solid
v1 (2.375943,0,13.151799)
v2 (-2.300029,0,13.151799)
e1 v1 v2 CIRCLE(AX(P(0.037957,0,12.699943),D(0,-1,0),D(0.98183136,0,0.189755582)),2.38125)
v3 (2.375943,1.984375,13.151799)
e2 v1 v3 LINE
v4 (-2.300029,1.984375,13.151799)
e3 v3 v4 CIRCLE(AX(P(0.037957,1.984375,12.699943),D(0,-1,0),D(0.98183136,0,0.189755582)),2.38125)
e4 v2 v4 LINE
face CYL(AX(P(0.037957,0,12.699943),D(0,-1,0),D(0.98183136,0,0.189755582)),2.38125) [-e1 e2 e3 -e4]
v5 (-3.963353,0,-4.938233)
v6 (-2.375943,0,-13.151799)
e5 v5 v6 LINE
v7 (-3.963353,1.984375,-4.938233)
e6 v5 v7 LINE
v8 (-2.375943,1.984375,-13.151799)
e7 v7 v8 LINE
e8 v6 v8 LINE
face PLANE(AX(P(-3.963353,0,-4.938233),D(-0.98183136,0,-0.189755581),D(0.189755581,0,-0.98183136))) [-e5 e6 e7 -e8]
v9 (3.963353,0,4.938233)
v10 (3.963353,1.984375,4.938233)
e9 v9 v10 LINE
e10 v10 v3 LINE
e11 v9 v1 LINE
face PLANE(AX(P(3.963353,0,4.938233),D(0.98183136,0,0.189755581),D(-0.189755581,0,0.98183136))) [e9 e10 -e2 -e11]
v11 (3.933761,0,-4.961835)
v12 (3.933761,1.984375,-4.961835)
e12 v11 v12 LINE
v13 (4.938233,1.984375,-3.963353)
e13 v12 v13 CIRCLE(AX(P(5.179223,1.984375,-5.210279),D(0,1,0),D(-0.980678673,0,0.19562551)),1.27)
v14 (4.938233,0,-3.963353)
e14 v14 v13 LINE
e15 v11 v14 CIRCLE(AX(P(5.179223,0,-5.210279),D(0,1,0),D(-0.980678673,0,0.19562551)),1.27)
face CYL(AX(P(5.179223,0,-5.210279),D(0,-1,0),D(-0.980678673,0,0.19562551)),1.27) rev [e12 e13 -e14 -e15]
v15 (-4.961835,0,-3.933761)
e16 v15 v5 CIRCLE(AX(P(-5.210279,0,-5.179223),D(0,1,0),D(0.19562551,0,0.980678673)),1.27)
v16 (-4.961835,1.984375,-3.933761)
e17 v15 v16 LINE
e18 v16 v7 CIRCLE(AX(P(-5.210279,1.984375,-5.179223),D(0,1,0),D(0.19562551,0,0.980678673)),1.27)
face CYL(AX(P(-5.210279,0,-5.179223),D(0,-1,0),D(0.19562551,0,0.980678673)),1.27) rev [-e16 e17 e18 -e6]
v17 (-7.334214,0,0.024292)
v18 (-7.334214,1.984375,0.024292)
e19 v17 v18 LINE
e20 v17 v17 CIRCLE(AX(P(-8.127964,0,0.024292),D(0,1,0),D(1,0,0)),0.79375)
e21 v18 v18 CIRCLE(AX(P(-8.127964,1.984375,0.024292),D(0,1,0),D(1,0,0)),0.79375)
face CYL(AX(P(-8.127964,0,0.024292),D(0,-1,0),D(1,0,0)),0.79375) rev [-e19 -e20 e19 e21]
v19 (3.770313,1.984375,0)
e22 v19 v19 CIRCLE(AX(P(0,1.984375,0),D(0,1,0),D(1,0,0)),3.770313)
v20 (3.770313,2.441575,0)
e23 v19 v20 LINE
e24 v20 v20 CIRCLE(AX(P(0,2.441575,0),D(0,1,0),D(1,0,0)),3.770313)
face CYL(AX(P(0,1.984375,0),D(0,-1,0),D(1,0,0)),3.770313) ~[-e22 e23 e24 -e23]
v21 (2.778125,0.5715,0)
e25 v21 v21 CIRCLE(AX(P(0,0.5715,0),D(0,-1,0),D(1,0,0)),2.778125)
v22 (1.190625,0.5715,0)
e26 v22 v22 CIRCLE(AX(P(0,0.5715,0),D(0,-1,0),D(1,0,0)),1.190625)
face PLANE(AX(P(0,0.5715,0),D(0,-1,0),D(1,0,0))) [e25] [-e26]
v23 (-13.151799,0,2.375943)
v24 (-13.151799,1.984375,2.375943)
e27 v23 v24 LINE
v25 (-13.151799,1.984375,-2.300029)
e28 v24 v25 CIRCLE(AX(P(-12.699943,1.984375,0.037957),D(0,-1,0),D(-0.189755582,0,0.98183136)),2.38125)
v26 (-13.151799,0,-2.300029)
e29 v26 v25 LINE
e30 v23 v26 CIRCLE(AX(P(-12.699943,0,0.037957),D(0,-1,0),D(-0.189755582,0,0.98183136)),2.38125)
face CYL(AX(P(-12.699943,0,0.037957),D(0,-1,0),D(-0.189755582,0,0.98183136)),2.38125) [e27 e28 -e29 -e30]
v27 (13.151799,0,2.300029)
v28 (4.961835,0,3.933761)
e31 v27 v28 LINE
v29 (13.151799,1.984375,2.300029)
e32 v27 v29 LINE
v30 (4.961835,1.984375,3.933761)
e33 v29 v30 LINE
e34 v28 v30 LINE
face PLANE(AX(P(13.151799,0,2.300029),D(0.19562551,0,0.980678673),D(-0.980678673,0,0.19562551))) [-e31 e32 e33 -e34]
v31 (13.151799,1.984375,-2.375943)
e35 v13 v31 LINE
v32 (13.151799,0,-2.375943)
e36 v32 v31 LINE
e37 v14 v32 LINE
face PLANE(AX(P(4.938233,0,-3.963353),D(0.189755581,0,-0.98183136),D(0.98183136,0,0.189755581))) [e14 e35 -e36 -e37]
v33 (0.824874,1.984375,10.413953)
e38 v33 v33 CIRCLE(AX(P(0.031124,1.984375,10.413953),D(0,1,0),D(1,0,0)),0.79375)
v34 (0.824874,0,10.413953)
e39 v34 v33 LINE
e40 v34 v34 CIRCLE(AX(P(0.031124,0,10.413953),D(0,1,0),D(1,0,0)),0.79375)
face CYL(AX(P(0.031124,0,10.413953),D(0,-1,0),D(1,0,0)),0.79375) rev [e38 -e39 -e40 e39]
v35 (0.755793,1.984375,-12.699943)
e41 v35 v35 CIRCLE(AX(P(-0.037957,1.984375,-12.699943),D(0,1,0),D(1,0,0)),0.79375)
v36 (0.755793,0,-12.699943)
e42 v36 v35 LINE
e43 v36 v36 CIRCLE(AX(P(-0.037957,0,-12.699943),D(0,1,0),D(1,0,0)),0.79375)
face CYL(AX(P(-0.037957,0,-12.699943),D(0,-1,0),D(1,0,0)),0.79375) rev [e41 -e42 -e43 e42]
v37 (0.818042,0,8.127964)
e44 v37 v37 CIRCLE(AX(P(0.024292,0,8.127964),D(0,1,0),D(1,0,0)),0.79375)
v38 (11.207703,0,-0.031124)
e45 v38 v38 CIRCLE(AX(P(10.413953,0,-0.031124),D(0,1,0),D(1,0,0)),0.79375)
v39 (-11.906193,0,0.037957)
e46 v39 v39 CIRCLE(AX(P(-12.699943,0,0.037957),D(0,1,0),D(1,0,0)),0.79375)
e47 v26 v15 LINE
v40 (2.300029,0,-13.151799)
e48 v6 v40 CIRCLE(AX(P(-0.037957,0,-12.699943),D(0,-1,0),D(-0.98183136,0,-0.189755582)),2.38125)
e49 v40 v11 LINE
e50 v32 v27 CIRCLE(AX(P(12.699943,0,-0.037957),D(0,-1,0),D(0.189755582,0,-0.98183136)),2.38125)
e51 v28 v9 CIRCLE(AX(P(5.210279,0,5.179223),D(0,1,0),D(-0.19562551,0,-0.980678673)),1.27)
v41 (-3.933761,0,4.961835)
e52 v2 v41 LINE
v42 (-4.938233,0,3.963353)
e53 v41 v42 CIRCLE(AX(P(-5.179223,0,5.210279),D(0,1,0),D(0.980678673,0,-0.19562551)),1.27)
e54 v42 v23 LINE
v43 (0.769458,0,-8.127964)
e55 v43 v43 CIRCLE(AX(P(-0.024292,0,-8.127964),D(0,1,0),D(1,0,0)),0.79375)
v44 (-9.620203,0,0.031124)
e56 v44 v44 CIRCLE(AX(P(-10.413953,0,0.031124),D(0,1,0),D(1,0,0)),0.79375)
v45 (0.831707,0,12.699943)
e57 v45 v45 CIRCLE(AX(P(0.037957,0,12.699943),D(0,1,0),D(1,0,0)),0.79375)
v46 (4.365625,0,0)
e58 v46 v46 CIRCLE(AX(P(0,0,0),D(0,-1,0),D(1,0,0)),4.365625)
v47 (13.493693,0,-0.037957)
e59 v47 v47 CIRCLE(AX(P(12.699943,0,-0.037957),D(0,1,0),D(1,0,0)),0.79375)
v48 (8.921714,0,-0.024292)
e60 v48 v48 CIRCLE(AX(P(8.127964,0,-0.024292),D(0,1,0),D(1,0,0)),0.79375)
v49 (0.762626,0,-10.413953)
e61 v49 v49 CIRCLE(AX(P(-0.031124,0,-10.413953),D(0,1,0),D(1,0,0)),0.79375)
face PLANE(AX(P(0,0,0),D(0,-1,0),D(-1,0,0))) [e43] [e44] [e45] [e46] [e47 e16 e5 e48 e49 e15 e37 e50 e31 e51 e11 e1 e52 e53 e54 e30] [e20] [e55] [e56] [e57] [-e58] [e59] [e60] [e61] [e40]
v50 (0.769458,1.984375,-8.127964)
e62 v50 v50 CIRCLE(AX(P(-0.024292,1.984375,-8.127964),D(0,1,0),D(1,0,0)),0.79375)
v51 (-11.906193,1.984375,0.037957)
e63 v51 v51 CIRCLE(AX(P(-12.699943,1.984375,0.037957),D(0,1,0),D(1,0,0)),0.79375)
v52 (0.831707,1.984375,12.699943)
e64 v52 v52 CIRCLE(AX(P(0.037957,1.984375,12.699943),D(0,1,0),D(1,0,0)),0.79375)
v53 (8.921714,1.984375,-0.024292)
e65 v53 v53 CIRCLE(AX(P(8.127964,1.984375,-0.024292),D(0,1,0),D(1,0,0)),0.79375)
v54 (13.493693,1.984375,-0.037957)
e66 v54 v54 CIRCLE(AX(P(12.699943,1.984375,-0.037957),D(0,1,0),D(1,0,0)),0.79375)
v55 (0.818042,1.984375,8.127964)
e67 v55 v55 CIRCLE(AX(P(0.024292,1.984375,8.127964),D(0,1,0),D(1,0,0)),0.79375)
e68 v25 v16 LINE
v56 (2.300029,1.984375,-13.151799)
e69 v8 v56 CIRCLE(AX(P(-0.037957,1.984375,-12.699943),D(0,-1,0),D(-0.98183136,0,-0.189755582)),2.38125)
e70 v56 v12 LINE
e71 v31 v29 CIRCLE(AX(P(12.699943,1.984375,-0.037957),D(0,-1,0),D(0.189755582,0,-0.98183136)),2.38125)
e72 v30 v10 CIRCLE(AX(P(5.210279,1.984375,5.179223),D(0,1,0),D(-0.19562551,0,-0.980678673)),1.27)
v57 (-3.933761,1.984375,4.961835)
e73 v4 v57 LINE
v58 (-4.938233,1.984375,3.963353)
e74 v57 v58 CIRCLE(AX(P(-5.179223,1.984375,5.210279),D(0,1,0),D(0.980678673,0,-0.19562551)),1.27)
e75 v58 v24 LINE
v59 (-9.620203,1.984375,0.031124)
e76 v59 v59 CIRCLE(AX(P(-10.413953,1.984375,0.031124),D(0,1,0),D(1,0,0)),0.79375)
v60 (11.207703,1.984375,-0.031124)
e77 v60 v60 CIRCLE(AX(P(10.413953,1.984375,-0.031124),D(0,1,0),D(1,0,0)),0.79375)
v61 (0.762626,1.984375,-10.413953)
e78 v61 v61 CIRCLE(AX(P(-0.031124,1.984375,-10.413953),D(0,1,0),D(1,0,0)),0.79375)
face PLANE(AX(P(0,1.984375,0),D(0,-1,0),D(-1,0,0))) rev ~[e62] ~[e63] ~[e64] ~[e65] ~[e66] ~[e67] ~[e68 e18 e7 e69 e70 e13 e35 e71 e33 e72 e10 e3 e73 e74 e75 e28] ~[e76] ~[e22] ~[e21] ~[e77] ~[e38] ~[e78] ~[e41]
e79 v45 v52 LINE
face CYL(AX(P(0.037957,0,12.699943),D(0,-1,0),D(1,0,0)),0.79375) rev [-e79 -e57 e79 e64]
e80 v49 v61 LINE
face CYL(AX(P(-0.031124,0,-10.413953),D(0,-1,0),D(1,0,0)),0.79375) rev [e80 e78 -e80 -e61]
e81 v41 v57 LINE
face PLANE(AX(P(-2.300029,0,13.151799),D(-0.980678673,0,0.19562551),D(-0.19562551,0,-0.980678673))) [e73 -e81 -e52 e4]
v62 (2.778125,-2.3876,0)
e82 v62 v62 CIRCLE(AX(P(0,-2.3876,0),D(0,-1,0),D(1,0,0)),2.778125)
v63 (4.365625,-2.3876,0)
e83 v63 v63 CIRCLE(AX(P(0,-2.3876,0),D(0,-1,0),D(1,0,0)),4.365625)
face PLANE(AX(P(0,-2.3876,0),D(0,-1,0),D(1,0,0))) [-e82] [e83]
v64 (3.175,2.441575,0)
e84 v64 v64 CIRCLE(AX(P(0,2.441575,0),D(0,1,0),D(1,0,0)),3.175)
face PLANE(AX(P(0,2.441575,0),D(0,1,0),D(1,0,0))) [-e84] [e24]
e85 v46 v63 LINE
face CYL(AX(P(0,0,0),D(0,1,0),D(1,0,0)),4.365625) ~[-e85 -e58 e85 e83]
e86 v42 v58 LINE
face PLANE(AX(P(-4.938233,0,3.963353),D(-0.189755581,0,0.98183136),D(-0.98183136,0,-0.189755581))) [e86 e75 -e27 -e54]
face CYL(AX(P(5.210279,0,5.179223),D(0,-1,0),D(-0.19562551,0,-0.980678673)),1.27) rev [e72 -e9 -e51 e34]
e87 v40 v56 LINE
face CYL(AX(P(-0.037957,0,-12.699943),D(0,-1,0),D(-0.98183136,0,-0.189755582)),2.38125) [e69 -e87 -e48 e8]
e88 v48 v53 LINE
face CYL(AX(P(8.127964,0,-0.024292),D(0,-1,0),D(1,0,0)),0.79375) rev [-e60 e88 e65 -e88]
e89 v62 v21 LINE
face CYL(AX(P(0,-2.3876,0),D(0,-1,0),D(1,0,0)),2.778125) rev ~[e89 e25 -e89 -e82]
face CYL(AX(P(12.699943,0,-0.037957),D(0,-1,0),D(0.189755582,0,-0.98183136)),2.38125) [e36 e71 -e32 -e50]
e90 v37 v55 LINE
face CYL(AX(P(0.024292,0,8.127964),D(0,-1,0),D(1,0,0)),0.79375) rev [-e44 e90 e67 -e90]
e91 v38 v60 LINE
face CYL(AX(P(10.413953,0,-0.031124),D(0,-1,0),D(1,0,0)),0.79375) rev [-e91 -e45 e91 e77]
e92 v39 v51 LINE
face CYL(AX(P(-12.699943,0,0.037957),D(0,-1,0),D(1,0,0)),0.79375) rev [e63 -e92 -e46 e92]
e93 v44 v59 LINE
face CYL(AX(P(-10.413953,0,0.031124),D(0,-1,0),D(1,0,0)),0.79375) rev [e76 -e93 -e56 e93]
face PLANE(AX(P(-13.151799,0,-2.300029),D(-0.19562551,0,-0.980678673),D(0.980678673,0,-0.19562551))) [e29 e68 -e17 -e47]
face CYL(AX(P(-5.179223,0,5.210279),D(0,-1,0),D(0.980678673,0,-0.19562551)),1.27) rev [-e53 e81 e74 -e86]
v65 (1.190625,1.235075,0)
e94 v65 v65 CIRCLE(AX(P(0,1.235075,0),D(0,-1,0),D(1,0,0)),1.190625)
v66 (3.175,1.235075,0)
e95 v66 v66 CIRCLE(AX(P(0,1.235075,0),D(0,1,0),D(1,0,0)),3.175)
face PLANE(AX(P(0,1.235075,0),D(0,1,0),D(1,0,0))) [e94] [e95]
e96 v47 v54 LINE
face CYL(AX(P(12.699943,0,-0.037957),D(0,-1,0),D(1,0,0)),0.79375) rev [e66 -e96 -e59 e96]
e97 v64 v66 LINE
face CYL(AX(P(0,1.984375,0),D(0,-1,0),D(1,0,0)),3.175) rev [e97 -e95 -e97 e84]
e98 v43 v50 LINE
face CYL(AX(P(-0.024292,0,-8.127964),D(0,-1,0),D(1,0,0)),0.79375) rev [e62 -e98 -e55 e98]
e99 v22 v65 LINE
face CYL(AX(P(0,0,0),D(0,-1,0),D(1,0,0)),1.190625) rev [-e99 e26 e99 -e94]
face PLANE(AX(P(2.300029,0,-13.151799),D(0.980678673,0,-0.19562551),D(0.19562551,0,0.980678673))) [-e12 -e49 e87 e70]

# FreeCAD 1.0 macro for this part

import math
import FreeCAD as App
import Part
import Sketcher
from FreeCAD import Vector
Q = App.Units.Quantity

doc = App.newDocument("Part")
params = doc.addObject("Spreadsheet::Sheet", "Params")
for row, (alias, value) in enumerate([
    ("sketch1_radius", "0.05 in"),
    ("sketch1_diameter", "0.0625 in"),
    ("sketch1_diameter2", "0.09375 in"),
    ("sketch1_radius2", "0.09375 in"),
    ("pad1_length", "0.078125 in"),
    ("sketch2_diameter", "0.25 in"),
    ("pocket1_length", "0.0295 in"),
    ("sketch3_diameter", "0.34375 in"),
    ("pad2_length", "0.094 in"),
    ("sketch4_diameter", "0.21875 in"),
    ("pocket2_length", "0.1165 in"),
    ("sketch5_diameter", "0.25 in"),
    ("sketch5_diameter2", "0.296875 in"),
    ("pad3_length", "0.018 in"),
], start=1):
    params.set(f"A{row}", alias)
    params.set(f"B{row}", "=" + value)
    params.setAlias(f"B{row}", alias)

body = doc.addObject("PartDesign::Body", "Body")

# Sketch on XZ plane
sketch1 = doc.addObject("Sketcher::SketchObject", "Sketch")
body.addObject(sketch1)
sketch1.AttachmentSupport = (doc.XZ_Plane, [""])
sketch1.MapMode = "FlatFace"
sketch1.addGeometry([
    Part.LineSegment(Vector(-2.375943, -13.151799, 0), Vector(-3.963353, -4.938233, 0)),  # 0
    Part.ArcOfCircle(Part.Circle(Vector(-5.210279, -5.179223, 0), Vector(0, 0, 1), 1.27), math.radians(10.938521), math.radians(78.718734)),  # 1
    Part.LineSegment(Vector(-4.961835, -3.933761, 0), Vector(-13.151799, -2.300029, 0)),  # 2
    Part.ArcOfCircle(Part.Circle(Vector(-12.699943, 0.037957, 0), Vector(0, 0, 1), 2.38125), math.radians(100.938521), math.radians(259.061479)),  # 3
    Part.LineSegment(Vector(-13.151799, 2.375943, 0), Vector(-4.938233, 3.963353, 0)),  # 4
    Part.ArcOfCircle(Part.Circle(Vector(-5.179223, 5.210279, 0), Vector(0, 0, 1), 1.27), math.radians(-79.061479), math.radians(-11.281266)),  # 5
    Part.LineSegment(Vector(-3.933761, 4.961835, 0), Vector(-2.300029, 13.151799, 0)),  # 6
    Part.ArcOfCircle(Part.Circle(Vector(0.037957, 12.699943, 0), Vector(0, 0, 1), 2.38125), math.radians(10.938521), math.radians(169.061479)),  # 7
    Part.LineSegment(Vector(2.375943, 13.151799, 0), Vector(3.963353, 4.938233, 0)),  # 8
    Part.ArcOfCircle(Part.Circle(Vector(5.210279, 5.179223, 0), Vector(0, 0, 1), 1.27), math.radians(-169.061479), math.radians(-101.281266)),  # 9
    Part.LineSegment(Vector(4.961835, 3.933761, 0), Vector(13.151799, 2.300029, 0)),  # 10
    Part.ArcOfCircle(Part.Circle(Vector(12.699943, -0.037957, 0), Vector(0, 0, 1), 2.38125), math.radians(-79.061479), math.radians(79.061479)),  # 11
    Part.LineSegment(Vector(13.151799, -2.375943, 0), Vector(4.938233, -3.963353, 0)),  # 12
    Part.ArcOfCircle(Part.Circle(Vector(5.179223, -5.210279, 0), Vector(0, 0, 1), 1.27), math.radians(100.938521), math.radians(168.718734)),  # 13
    Part.LineSegment(Vector(3.933761, -4.961835, 0), Vector(2.300029, -13.151799, 0)),  # 14
    Part.ArcOfCircle(Part.Circle(Vector(-0.037957, -12.699943, 0), Vector(0, 0, 1), 2.38125), math.radians(-169.061479), math.radians(-10.938521)),  # 15
    Part.Circle(Vector(0.037957, 12.699943, 0), Vector(0, 0, 1), 0.79375),  # 16
    Part.Circle(Vector(0.031124, 10.413953, 0), Vector(0, 0, 1), 0.79375),  # 17
    Part.Circle(Vector(0.024292, 8.127964, 0), Vector(0, 0, 1), 0.79375),  # 18
    Part.Circle(Vector(0, 0, 0), Vector(0, 0, 1), 1.190625),  # 19
    Part.Circle(Vector(-8.127964, 0.024292, 0), Vector(0, 0, 1), 0.79375),  # 20
    Part.Circle(Vector(-10.413953, 0.031124, 0), Vector(0, 0, 1), 0.79375),  # 21
    Part.Circle(Vector(-12.699943, 0.037957, 0), Vector(0, 0, 1), 0.79375),  # 22
    Part.Circle(Vector(12.699943, -0.037957, 0), Vector(0, 0, 1), 0.79375),  # 23
    Part.Circle(Vector(10.413953, -0.031124, 0), Vector(0, 0, 1), 0.79375),  # 24
    Part.Circle(Vector(8.127964, -0.024292, 0), Vector(0, 0, 1), 0.79375),  # 25
    Part.Circle(Vector(-0.024292, -8.127964, 0), Vector(0, 0, 1), 0.79375),  # 26
    Part.Circle(Vector(-0.031124, -10.413953, 0), Vector(0, 0, 1), 0.79375),  # 27
    Part.Circle(Vector(-0.037957, -12.699943, 0), Vector(0, 0, 1), 0.79375),  # 28
], False)
sketch1.addConstraint([
    Sketcher.Constraint("Tangent", 0, 2, 1, 1),
    Sketcher.Constraint("Tangent", 1, 2, 2, 1),
    Sketcher.Constraint("Coincident", 2, 2, 3, 2),
    Sketcher.Constraint("Tangent", 3, 1, 4, 1),
    Sketcher.Constraint("Tangent", 4, 2, 5, 1),
    Sketcher.Constraint("Tangent", 5, 2, 6, 1),
    Sketcher.Constraint("Coincident", 6, 2, 7, 2),
    Sketcher.Constraint("Tangent", 7, 1, 8, 1),
    Sketcher.Constraint("Tangent", 8, 2, 9, 1),
    Sketcher.Constraint("Tangent", 9, 2, 10, 1),
    Sketcher.Constraint("Coincident", 10, 2, 11, 2),
    Sketcher.Constraint("Tangent", 11, 1, 12, 1),
    Sketcher.Constraint("Tangent", 12, 2, 13, 1),
    Sketcher.Constraint("Tangent", 13, 2, 14, 1),
    Sketcher.Constraint("Coincident", 14, 2, 15, 2),
    Sketcher.Constraint("Tangent", 15, 1, 0, 1),
    Sketcher.Constraint("Coincident", 19, 3, -1, 1),
    Sketcher.Constraint("Coincident", 16, 3, 7, 3),
    Sketcher.Constraint("Coincident", 22, 3, 3, 3),
    Sketcher.Constraint("Coincident", 23, 3, 11, 3),
    Sketcher.Constraint("Coincident", 28, 3, 15, 3),
    Sketcher.Constraint("Equal", 1, 5),
    Sketcher.Constraint("Equal", 3, 7),
    Sketcher.Constraint("Equal", 5, 9),
    Sketcher.Constraint("Equal", 7, 11),
    Sketcher.Constraint("Equal", 9, 13),
    Sketcher.Constraint("Equal", 11, 15),
    Sketcher.Constraint("Equal", 16, 17),
    Sketcher.Constraint("Equal", 17, 18),
    Sketcher.Constraint("Equal", 18, 20),
    Sketcher.Constraint("Equal", 20, 21),
    Sketcher.Constraint("Equal", 21, 22),
    Sketcher.Constraint("Equal", 22, 23),
    Sketcher.Constraint("Equal", 23, 24),
    Sketcher.Constraint("Equal", 24, 25),
    Sketcher.Constraint("Equal", 25, 26),
    Sketcher.Constraint("Equal", 26, 27),
    Sketcher.Constraint("Equal", 27, 28),
    Sketcher.Constraint("Symmetric", 1, 3, 9, 3, -1, 1),
    Sketcher.Constraint("Symmetric", 3, 3, 11, 3, -1, 1),
    Sketcher.Constraint("Symmetric", 5, 3, 13, 3, -1, 1),
    Sketcher.Constraint("Symmetric", 7, 3, 15, 3, -1, 1),
    Sketcher.Constraint("Symmetric", 21, 3, 24, 3, -1, 1),
    Sketcher.Constraint("Symmetric", 20, 3, 25, 3, -1, 1),
    Sketcher.Constraint("Symmetric", 18, 3, 26, 3, -1, 1),
    Sketcher.Constraint("Symmetric", 17, 3, 27, 3, -1, 1),
    Sketcher.Constraint("Perpendicular", 0, 4),
    Sketcher.Constraint("Perpendicular", 2, 6),
    Sketcher.Constraint("Perpendicular", 6, 10),
    Sketcher.Constraint("Perpendicular", 10, 14),
    Sketcher.Constraint("Horizontal", 6, 2, 7, 1),
    Sketcher.Constraint("Vertical", 2, 2, 3, 1),
    Sketcher.Constraint("Equal", 0, 4),
    Sketcher.Constraint("Equal", 2, 6),
    Sketcher.Constraint("Radius", 1, Q("0.05 in")),
    Sketcher.Constraint("Diameter", 16, Q("0.0625 in")),
    Sketcher.Constraint("Diameter", 19, Q("0.09375 in")),
    Sketcher.Constraint("Radius", 3, Q("0.09375 in")),
    Sketcher.Constraint("DistanceX", 2, 2, -1, 1, 13.151799),
    Sketcher.Constraint("DistanceX", 3, 3, 7, 3, 12.7379),
    Sketcher.Constraint("DistanceX", 1, 3, -1, 1, 5.210279),
    Sketcher.Constraint("DistanceY", 1, 2, -1, 1, 3.933761),
    Sketcher.Constraint("DistanceY", 17, 3, 7, 3, 2.28599),
    Sketcher.Constraint("DistanceY", 18, 3, 17, 3, 2.28599),
    Sketcher.Constraint("DistanceX", 3, 3, 20, 3, 4.57198),
    Sketcher.Constraint("DistanceY", 20, 3, 18, 3, 8.103671),
    Sketcher.Constraint("DistanceX", 21, 3, 20, 3, 2.28599),
    Sketcher.Constraint("DistanceX", 18, 3, 23, 3, 12.675651),
    Sketcher.Constraint("DistanceX", 0, 2, 27, 3, 3.932229),
    Sketcher.Constraint("DistanceY", 21, 3, 3, 1, 2.344818),
])
sketch1.setExpression("Constraints[54]", "Params.sketch1_radius")
sketch1.setExpression("Constraints[55]", "Params.sketch1_diameter")
sketch1.setExpression("Constraints[56]", "Params.sketch1_diameter2")
sketch1.setExpression("Constraints[57]", "Params.sketch1_radius2")
pad1 = doc.addObject("PartDesign::Pad", "Pad")
body.addObject(pad1)
pad1.Profile = sketch1
pad1.setExpression("Length", "Params.pad1_length")
pad1.Reversed = True

# Sketch on XZ plane
sketch2 = doc.addObject("Sketcher::SketchObject", "Sketch001")
body.addObject(sketch2)
sketch2.AttachmentSupport = (doc.XZ_Plane, [""])
sketch2.MapMode = "FlatFace"
sketch2.AttachmentOffset = App.Placement(Vector(0, 0, -0.078125 * 25.4), App.Rotation())
sketch2.addGeometry(Part.Circle(Vector(0, 0, 0), Vector(0, 0, 1), 3.175), False)
sketch2.addConstraint([
    Sketcher.Constraint("Coincident", 0, 3, -1, 1),
    Sketcher.Constraint("Diameter", 0, Q("0.25 in")),
])
sketch2.setExpression("Constraints[1]", "Params.sketch2_diameter")
pocket1 = doc.addObject("PartDesign::Pocket", "Pocket")
body.addObject(pocket1)
pocket1.Profile = sketch2
pocket1.setExpression("Length", "Params.pocket1_length")
pocket1.Reversed = True

# Sketch on XZ plane
sketch3 = doc.addObject("Sketcher::SketchObject", "Sketch002")
body.addObject(sketch3)
sketch3.AttachmentSupport = (doc.XZ_Plane, [""])
sketch3.MapMode = "FlatFace"
sketch3.addGeometry(Part.Circle(Vector(0, 0, 0), Vector(0, 0, 1), 4.365625), False)
sketch3.addConstraint([
    Sketcher.Constraint("Coincident", 0, 3, -1, 1),
    Sketcher.Constraint("Diameter", 0, Q("0.34375 in")),
])
sketch3.setExpression("Constraints[1]", "Params.sketch3_diameter")
pad2 = doc.addObject("PartDesign::Pad", "Pad001")
body.addObject(pad2)
pad2.Profile = sketch3
pad2.setExpression("Length", "Params.pad2_length")

# Sketch on XZ plane
sketch4 = doc.addObject("Sketcher::SketchObject", "Sketch003")
body.addObject(sketch4)
sketch4.AttachmentSupport = (doc.XZ_Plane, [""])
sketch4.MapMode = "FlatFace"
sketch4.AttachmentOffset = App.Placement(Vector(0, 0, 0.094 * 25.4), App.Rotation())
sketch4.addGeometry(Part.Circle(Vector(0, 0, 0), Vector(0, 0, 1), 2.778125), False)
sketch4.addConstraint([
    Sketcher.Constraint("Coincident", 0, 3, -1, 1),
    Sketcher.Constraint("Diameter", 0, Q("0.21875 in")),
])
sketch4.setExpression("Constraints[1]", "Params.sketch4_diameter")
pocket2 = doc.addObject("PartDesign::Pocket", "Pocket001")
body.addObject(pocket2)
pocket2.Profile = sketch4
pocket2.setExpression("Length", "Params.pocket2_length")

# Sketch on XZ plane
sketch5 = doc.addObject("Sketcher::SketchObject", "Sketch004")
body.addObject(sketch5)
sketch5.AttachmentSupport = (doc.XZ_Plane, [""])
sketch5.MapMode = "FlatFace"
sketch5.AttachmentOffset = App.Placement(Vector(0, 0, -0.078125 * 25.4), App.Rotation())
sketch5.addGeometry([
    Part.Circle(Vector(0, 0, 0), Vector(0, 0, 1), 3.770313),
    Part.Circle(Vector(0, 0, 0), Vector(0, 0, 1), 3.175),
], False)
sketch5.addConstraint([
    Sketcher.Constraint("Coincident", 0, 3, -1, 1),
    Sketcher.Constraint("Coincident", 1, 3, -1, 1),
    Sketcher.Constraint("Diameter", 1, Q("0.25 in")),
    Sketcher.Constraint("Diameter", 0, Q("0.296875 in")),
])
sketch5.setExpression("Constraints[2]", "Params.sketch5_diameter")
sketch5.setExpression("Constraints[3]", "Params.sketch5_diameter2")
pad3 = doc.addObject("PartDesign::Pad", "Pad002")
body.addObject(pad3)
pad3.Profile = sketch5
pad3.setExpression("Length", "Params.pad3_length")
pad3.Reversed = True

doc.recompute()
